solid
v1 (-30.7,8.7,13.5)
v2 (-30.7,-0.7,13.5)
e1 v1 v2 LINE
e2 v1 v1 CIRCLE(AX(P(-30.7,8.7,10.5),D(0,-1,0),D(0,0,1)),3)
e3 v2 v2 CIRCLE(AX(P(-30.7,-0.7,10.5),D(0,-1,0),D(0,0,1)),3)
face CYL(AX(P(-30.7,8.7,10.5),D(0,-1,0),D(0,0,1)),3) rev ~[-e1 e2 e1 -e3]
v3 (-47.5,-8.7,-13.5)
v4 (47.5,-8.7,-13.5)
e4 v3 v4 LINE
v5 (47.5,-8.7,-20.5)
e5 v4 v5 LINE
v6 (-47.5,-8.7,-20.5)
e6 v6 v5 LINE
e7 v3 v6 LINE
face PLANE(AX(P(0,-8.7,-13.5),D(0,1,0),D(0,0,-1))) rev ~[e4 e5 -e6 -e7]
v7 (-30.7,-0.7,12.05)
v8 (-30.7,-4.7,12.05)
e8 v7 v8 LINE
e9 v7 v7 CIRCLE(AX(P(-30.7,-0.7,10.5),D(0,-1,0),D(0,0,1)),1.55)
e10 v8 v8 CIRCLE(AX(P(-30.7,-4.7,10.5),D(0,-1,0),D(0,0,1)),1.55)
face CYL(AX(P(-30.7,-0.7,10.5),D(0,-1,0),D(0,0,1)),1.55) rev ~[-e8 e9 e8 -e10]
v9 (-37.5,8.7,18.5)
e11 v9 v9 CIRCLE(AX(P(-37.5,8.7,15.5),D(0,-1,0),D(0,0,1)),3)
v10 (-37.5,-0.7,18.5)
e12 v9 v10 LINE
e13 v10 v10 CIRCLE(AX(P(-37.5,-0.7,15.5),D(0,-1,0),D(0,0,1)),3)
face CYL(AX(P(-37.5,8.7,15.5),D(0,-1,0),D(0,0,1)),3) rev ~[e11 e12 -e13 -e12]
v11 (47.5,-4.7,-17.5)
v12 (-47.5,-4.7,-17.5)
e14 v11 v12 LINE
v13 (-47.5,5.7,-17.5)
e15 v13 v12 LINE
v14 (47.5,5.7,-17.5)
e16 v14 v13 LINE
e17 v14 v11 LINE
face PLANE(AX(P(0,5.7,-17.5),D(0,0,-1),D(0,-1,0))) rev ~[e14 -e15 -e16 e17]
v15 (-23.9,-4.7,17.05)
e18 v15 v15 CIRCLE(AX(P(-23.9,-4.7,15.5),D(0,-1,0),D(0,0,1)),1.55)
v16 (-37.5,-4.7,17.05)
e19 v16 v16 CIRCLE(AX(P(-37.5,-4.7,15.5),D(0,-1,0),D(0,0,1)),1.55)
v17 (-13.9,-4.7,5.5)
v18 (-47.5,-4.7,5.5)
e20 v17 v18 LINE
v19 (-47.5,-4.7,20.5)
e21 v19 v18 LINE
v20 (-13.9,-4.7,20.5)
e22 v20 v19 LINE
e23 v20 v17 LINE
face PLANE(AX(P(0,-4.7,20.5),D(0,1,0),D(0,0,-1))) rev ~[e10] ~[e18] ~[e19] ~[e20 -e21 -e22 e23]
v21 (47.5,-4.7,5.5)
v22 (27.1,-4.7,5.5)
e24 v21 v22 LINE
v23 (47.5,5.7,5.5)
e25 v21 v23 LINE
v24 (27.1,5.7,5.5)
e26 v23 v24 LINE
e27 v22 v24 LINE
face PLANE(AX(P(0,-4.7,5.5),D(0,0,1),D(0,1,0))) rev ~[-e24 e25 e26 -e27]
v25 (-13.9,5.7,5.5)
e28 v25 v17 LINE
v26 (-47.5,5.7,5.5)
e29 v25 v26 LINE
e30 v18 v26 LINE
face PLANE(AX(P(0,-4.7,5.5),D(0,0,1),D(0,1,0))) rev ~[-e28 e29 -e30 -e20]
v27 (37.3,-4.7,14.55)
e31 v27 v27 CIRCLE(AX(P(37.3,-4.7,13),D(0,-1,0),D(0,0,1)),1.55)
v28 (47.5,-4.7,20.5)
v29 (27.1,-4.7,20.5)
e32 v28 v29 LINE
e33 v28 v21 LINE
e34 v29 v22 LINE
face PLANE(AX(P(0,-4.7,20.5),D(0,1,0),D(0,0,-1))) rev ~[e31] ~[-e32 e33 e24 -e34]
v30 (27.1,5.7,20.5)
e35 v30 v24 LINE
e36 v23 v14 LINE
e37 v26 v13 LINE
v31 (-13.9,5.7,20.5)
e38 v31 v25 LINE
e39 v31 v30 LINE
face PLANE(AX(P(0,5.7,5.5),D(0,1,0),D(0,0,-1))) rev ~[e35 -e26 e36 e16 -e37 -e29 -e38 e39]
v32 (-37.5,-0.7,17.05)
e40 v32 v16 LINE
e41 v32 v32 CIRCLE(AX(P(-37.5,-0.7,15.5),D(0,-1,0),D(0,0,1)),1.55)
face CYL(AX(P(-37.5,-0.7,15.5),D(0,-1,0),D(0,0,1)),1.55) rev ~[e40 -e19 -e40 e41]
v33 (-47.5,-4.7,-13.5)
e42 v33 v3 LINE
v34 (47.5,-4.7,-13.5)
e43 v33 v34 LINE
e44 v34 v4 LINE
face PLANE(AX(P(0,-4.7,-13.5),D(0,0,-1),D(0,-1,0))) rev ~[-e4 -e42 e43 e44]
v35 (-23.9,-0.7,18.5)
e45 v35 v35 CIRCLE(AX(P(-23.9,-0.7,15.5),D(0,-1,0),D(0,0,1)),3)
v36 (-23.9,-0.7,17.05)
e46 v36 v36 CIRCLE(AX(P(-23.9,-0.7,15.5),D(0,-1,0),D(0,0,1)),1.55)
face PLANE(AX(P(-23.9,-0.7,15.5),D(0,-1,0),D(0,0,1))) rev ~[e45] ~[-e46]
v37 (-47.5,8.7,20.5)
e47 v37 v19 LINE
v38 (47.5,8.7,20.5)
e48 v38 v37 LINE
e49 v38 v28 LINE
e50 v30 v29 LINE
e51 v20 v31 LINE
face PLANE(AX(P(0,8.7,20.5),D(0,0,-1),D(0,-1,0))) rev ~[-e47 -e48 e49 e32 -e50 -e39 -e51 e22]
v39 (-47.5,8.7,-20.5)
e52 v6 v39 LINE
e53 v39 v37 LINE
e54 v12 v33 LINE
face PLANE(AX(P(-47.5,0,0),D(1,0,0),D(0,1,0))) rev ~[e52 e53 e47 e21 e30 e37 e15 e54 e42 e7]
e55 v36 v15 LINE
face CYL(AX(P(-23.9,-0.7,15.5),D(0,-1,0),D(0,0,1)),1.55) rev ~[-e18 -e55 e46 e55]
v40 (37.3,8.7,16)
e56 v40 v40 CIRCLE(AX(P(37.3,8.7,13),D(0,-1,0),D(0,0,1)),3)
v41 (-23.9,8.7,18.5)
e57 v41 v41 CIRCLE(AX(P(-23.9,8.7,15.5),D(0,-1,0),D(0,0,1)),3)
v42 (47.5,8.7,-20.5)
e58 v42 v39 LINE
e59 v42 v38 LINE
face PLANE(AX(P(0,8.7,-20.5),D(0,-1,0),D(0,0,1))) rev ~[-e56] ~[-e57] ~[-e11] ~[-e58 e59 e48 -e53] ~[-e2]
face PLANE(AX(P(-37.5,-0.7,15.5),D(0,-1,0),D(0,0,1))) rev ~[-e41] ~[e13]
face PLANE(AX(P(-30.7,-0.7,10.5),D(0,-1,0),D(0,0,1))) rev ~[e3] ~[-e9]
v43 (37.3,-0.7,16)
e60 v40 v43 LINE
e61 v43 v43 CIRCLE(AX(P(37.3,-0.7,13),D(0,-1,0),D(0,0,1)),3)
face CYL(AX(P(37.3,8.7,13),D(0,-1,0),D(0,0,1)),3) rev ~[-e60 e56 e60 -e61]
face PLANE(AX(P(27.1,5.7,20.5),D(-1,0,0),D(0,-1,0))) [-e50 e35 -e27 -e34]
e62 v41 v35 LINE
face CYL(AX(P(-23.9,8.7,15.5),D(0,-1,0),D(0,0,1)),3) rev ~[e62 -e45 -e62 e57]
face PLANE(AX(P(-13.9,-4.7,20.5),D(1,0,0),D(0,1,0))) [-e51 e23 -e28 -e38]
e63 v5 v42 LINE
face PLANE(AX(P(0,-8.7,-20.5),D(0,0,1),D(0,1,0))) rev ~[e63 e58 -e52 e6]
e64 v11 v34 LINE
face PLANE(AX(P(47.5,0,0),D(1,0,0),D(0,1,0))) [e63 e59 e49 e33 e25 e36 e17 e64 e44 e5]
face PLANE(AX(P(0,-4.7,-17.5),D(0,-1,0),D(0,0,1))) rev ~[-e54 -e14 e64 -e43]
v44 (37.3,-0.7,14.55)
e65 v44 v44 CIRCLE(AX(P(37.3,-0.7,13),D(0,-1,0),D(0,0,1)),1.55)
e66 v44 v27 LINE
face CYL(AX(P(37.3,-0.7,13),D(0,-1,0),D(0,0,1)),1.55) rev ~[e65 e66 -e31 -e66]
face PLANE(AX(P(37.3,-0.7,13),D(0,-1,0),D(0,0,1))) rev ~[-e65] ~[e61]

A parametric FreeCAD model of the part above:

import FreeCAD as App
import Part
import Sketcher
from FreeCAD import Vector
Q = App.Units.Quantity

doc = App.newDocument("Part")
body = doc.addObject("PartDesign::Body", "Body")

# Sketch on YZ plane
sketch1 = doc.addObject("Sketcher::SketchObject", "Sketch")
body.addObject(sketch1)
sketch1.AttachmentSupport = (doc.YZ_Plane, [""])
sketch1.MapMode = "FlatFace"
sketch1.addGeometry([
    Part.LineSegment(Vector(-4.7, -17.5, 0), Vector(-4.7, -13.5, 0)),  # 0
    Part.LineSegment(Vector(-4.7, -13.5, 0), Vector(-8.7, -13.5, 0)),  # 1
    Part.LineSegment(Vector(-8.7, -13.5, 0), Vector(-8.7, -20.5, 0)),  # 2
    Part.LineSegment(Vector(-8.7, -20.5, 0), Vector(8.7, -20.5, 0)),  # 3
    Part.LineSegment(Vector(8.7, -20.5, 0), Vector(8.7, 20.5, 0)),  # 4
    Part.LineSegment(Vector(8.7, 20.5, 0), Vector(-4.7, 20.5, 0)),  # 5
    Part.LineSegment(Vector(-4.7, 20.5, 0), Vector(-4.7, 5.5, 0)),  # 6
    Part.LineSegment(Vector(-4.7, 5.5, 0), Vector(5.7, 5.5, 0)),  # 7
    Part.LineSegment(Vector(5.7, 5.5, 0), Vector(5.7, -17.5, 0)),  # 8
    Part.LineSegment(Vector(5.7, -17.5, 0), Vector(-4.7, -17.5, 0)),  # 9
], False)
sketch1.addConstraint([
    Sketcher.Constraint("Coincident", 0, 2, 1, 1),
    Sketcher.Constraint("Coincident", 1, 2, 2, 1),
    Sketcher.Constraint("Coincident", 2, 2, 3, 1),
    Sketcher.Constraint("Coincident", 3, 2, 4, 1),
    Sketcher.Constraint("Coincident", 4, 2, 5, 1),
    Sketcher.Constraint("Coincident", 5, 2, 6, 1),
    Sketcher.Constraint("Coincident", 6, 2, 7, 1),
    Sketcher.Constraint("Coincident", 7, 2, 8, 1),
    Sketcher.Constraint("Coincident", 8, 2, 9, 1),
    Sketcher.Constraint("Coincident", 9, 2, 0, 1),
    Sketcher.Constraint("Vertical", 0),
    Sketcher.Constraint("Horizontal", 1),
    Sketcher.Constraint("Vertical", 2),
    Sketcher.Constraint("Horizontal", 3),
    Sketcher.Constraint("Vertical", 4),
    Sketcher.Constraint("Horizontal", 5),
    Sketcher.Constraint("Vertical", 6),
    Sketcher.Constraint("Horizontal", 7),
    Sketcher.Constraint("Vertical", 8),
    Sketcher.Constraint("Horizontal", 9),
    Sketcher.Constraint("Symmetric", 2, 2, 4, 2, -1, 1),
    Sketcher.Constraint("Vertical", 0, 2, 5, 2),
    Sketcher.Constraint("Equal", 1, 0),
    Sketcher.Constraint("DistanceX", 1, 2, 1, 1, Q("4 mm")),
    Sketcher.Constraint("DistanceY", 6, 2, 6, 1, Q("15 mm")),
    Sketcher.Constraint("DistanceY", 8, 2, 8, 1, Q("23 mm")),
    Sketcher.Constraint("DistanceX", 7, 1, 7, 2, Q("10.4 mm")),
    Sketcher.Constraint("DistanceX", 7, 2, 4, 2, Q("3 mm")),
    Sketcher.Constraint("DistanceY", 3, 2, 8, 2, Q("3 mm")),
])
pad1 = doc.addObject("PartDesign::Pad", "Pad")
body.addObject(pad1)
pad1.Profile = sketch1
pad1.Length = 95
pad1.Midplane = True

# Sketch on XY plane
sketch2 = doc.addObject("Sketcher::SketchObject", "Sketch001")
body.addObject(sketch2)
sketch2.AttachmentSupport = (doc.XY_Plane, [""])
sketch2.MapMode = "FlatFace"
sketch2.AttachmentOffset = App.Placement(Vector(0, 0, 20.5), App.Rotation())
sketch2.addGeometry([
    Part.LineSegment(Vector(-14, 6, 0), Vector(-14, -5, 0)),
    Part.LineSegment(Vector(-14, -5, 0), Vector(27, -5, 0)),
    Part.LineSegment(Vector(27, -5, 0), Vector(27, 6, 0)),
    Part.LineSegment(Vector(27, 6, 0), Vector(-14, 6, 0)),
], False)
sketch2.addConstraint([
    Sketcher.Constraint("Coincident", 0, 2, 1, 1),
    Sketcher.Constraint("Coincident", 1, 2, 2, 1),
    Sketcher.Constraint("Coincident", 2, 2, 3, 1),
    Sketcher.Constraint("Coincident", 3, 2, 0, 1),
    Sketcher.Constraint("Vertical", 0),
    Sketcher.Constraint("Horizontal", 1),
    Sketcher.Constraint("Vertical", 2),
    Sketcher.Constraint("Horizontal", 3),
    Sketcher.Constraint("DistanceX", 1, 1, 1, 2, Q("41 mm")),
    Sketcher.Constraint("DistanceY", 0, 2, 0, 1, Q("10.4 mm")),
    Sketcher.Constraint("DistanceX", 0, 2, -1, 1, Q("13.9 mm")),
    Sketcher.Constraint("DistanceY", 0, 2, -1, 1, Q("4.7 mm")),
])
pocket1 = doc.addObject("PartDesign::Pocket", "Pocket")
body.addObject(pocket1)
pocket1.Profile = sketch2
pocket1.Type = "UpToFirst"

# Sketch on XZ plane
sketch3 = doc.addObject("Sketcher::SketchObject", "Sketch002")
body.addObject(sketch3)
sketch3.AttachmentSupport = (doc.XZ_Plane, [""])
sketch3.MapMode = "FlatFace"
sketch3.AttachmentOffset = App.Placement(Vector(0, 0, -8.7), App.Rotation())
sketch3.addGeometry([
    Part.Circle(Vector(-37.5, 15.5, 0), Vector(0, 0, 1), 1.6),
    Part.Circle(Vector(-30.7, 10.5, 0), Vector(0, 0, 1), 1.6),
    Part.Circle(Vector(-23.9, 15.5, 0), Vector(0, 0, 1), 1.6),
    Part.Circle(Vector(37.3, 13, 0), Vector(0, 0, 1), 1.6),
], False)
sketch3.addConstraint([
    Sketcher.Constraint("Equal", 0, 1),
    Sketcher.Constraint("Equal", 1, 2),
    Sketcher.Constraint("Equal", 2, 3),
    Sketcher.Constraint("Horizontal", 0, 3, 2, 3),
    Sketcher.Constraint("Diameter", 0, Q("3.1 mm")),
    Sketcher.Constraint("DistanceY", -1, 1, 3, 3, Q("13 mm")),
    Sketcher.Constraint("DistanceY", 1, 3, 0, 3, Q("5 mm")),
    Sketcher.Constraint("DistanceX", 1, 3, 3, 3, Q("68 mm")),
    Sketcher.Constraint("DistanceX", 0, 3, -1, 1, Q("37.5 mm")),
    Sketcher.Constraint("DistanceY", -1, 1, 0, 3, Q("15.5 mm")),
    Sketcher.Constraint("DistanceX", 1, 3, -1, 1, Q("30.7 mm")),
    Sketcher.Constraint("DistanceX", 2, 3, -1, 1, Q("23.9 mm")),
])
doc.recompute()
hole = doc.addObject("PartDesign::Hole", "Hole")
body.addObject(hole)
hole.Profile = sketch3
hole.ThreadType = "None"
hole.Diameter = 3.1
hole.DepthType = "Dimension"
hole.Depth = 13.4
hole.DrillPoint = "Flat"
hole.HoleCutType = "Counterbore"
hole.HoleCutDiameter = 6
hole.HoleCutDepth = 9.4
hole.Reversed = True

doc.recompute()
